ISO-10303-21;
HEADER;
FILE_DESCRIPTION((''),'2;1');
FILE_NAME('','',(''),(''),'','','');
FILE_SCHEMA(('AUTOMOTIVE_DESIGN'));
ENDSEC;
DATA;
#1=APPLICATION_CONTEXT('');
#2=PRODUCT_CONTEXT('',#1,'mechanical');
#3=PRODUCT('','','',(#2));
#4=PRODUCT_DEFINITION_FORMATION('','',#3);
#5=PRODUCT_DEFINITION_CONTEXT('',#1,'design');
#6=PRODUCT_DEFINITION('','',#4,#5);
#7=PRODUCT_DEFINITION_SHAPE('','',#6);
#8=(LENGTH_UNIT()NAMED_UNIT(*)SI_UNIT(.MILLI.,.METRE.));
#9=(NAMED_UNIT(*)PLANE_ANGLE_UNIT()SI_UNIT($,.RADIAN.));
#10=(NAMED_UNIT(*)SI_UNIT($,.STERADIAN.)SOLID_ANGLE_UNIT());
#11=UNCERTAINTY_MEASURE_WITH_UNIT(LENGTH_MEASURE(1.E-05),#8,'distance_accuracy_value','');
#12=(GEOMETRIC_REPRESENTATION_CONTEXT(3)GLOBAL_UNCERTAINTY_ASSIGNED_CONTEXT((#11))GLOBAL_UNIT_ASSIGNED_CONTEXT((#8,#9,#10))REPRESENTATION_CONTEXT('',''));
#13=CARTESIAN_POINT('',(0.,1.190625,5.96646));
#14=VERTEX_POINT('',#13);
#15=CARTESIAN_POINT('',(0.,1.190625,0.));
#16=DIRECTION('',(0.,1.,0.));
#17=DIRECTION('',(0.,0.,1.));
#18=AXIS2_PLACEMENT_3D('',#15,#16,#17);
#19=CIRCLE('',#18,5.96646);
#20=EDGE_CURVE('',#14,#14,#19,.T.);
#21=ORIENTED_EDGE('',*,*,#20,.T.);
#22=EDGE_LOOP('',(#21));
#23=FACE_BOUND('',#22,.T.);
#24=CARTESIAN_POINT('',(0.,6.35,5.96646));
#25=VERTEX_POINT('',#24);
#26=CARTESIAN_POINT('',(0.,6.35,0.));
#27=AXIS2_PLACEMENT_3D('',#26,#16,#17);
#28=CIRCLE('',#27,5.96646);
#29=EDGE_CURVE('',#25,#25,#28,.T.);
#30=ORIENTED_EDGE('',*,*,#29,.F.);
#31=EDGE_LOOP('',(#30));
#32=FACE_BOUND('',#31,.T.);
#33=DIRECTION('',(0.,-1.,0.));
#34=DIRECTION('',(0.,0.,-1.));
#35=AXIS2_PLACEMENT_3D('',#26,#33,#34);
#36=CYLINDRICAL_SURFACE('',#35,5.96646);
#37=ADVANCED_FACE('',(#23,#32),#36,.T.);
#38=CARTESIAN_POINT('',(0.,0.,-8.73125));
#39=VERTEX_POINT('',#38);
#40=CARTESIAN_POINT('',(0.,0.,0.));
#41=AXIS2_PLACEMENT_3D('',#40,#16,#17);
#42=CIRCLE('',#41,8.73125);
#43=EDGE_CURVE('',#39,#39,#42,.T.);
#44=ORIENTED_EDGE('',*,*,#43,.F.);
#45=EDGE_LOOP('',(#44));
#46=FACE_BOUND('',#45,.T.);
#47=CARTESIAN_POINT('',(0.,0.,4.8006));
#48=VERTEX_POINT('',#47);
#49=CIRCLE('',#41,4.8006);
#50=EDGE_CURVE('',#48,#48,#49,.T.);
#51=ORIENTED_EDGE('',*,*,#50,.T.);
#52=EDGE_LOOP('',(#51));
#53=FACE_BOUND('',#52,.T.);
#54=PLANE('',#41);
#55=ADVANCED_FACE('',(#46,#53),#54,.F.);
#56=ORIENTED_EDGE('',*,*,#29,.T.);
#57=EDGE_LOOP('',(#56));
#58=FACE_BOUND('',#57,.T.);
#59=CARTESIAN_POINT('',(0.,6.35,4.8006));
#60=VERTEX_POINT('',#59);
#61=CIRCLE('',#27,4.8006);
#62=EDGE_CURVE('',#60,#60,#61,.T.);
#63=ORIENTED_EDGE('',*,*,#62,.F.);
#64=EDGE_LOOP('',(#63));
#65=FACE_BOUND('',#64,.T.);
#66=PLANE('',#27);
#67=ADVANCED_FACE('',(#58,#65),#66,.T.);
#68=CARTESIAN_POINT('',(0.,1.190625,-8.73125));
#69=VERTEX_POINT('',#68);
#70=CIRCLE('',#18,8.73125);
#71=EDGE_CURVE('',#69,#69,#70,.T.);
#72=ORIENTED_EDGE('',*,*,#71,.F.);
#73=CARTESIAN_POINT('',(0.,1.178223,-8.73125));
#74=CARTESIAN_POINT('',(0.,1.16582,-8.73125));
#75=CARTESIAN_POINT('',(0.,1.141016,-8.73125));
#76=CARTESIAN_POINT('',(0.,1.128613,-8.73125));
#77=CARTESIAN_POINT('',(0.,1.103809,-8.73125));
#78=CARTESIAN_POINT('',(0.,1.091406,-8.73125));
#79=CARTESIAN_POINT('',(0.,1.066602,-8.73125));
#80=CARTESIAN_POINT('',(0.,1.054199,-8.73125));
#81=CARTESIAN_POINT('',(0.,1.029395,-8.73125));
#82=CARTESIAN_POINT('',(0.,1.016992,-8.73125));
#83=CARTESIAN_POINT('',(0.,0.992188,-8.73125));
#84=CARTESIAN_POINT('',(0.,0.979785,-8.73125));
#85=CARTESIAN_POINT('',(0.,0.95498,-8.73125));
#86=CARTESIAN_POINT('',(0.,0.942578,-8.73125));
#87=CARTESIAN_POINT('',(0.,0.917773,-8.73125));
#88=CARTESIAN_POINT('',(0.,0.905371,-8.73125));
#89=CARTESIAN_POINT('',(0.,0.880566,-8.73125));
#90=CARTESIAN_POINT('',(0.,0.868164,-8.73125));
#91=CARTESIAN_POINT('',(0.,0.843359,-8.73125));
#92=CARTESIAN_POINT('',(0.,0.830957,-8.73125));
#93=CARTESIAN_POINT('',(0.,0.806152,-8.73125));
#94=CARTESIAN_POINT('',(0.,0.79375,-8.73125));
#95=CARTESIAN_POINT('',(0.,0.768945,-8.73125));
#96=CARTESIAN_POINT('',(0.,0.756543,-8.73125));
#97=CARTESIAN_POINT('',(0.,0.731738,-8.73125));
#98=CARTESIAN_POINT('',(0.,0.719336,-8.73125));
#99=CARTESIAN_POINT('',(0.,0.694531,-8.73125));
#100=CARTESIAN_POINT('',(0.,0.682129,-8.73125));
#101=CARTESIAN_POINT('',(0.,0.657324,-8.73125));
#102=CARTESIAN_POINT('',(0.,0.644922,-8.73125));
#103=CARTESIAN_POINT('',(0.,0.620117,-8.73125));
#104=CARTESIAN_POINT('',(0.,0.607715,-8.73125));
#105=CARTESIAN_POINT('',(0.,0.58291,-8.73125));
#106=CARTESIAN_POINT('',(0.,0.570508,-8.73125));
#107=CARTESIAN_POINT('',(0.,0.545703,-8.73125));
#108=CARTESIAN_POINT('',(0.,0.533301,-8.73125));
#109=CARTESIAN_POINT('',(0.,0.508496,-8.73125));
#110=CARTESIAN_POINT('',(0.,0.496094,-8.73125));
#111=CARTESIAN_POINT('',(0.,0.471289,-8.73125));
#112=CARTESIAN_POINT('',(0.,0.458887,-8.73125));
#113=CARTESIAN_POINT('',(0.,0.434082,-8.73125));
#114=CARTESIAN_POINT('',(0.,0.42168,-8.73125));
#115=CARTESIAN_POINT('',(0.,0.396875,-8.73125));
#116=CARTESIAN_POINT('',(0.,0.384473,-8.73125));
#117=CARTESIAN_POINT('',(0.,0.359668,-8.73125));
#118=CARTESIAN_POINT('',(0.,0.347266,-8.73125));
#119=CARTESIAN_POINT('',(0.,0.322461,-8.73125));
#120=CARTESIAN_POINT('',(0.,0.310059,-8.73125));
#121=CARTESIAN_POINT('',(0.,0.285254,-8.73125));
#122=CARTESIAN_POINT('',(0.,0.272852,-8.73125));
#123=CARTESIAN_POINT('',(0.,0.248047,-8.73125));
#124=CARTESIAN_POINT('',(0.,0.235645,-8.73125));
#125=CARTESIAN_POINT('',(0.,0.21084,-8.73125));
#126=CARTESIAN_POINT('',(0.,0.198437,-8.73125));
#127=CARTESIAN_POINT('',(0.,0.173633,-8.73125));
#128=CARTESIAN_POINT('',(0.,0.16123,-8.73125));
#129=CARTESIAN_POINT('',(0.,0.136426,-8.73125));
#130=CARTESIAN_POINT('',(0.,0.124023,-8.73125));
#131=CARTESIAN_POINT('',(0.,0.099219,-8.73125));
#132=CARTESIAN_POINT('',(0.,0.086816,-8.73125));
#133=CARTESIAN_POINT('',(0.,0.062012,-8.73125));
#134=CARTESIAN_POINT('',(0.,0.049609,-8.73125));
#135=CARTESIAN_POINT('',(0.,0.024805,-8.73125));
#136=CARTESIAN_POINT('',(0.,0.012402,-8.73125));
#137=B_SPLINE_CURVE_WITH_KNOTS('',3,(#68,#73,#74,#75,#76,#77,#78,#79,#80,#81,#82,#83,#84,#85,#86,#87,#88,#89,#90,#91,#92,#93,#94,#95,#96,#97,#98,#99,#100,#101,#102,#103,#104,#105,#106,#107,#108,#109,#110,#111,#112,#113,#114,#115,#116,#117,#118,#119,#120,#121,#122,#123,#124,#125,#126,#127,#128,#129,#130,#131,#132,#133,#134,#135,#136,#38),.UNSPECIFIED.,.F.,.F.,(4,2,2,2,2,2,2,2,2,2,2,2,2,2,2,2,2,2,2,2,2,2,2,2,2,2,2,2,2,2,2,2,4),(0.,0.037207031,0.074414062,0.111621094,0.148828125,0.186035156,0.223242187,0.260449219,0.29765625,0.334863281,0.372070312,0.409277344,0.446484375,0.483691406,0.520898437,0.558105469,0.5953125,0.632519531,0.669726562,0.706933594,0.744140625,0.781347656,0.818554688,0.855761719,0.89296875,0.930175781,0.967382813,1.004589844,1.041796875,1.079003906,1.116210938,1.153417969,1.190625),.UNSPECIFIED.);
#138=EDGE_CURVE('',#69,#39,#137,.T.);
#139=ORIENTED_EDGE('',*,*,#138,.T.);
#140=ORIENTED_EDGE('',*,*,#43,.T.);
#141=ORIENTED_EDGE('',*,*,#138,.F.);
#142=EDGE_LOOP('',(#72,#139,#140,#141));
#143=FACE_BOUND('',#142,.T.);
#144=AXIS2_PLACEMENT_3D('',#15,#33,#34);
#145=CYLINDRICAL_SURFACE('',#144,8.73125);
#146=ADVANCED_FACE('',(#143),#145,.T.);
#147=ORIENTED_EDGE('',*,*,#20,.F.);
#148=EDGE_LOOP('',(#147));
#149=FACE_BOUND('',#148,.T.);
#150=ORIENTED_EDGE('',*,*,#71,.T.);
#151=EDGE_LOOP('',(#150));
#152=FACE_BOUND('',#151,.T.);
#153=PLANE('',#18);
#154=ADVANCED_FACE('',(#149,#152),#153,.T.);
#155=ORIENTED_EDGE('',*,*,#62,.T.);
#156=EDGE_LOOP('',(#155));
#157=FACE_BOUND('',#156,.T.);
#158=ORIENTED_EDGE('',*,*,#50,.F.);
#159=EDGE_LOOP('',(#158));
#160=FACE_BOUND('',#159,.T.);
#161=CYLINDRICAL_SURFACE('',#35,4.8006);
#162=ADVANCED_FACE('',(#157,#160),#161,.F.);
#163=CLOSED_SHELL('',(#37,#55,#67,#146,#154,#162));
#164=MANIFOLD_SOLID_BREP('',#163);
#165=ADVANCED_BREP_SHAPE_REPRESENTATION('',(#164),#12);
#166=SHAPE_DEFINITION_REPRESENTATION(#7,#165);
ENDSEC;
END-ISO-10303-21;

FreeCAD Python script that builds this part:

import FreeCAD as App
import Part
import Sketcher

V = App.Vector
Q = App.Units.Quantity

doc = App.newDocument("Part")
body = doc.addObject("PartDesign::Body", "Body")

# Sketch on XZ plane
sketch1 = body.newObject("Sketcher::SketchObject", "Sketch")
sketch1.AttachmentSupport = (doc.getObject("XZ_Plane"), [""])
sketch1.MapMode = "FlatFace"
sketch1.addGeometry([
    Part.Circle(V(0, 0, 0), V(0, 0, 1), 6),
    Part.Circle(V(0, 0, 0), V(0, 0, 1), 4.8),
], False)
sketch1.addConstraint([
    Sketcher.Constraint("Coincident", 0, 3, -1, 1),
    Sketcher.Constraint("Coincident", 1, 3, -1, 1),
    Sketcher.Constraint("Diameter", 1, Q("0.378 in")),
    Sketcher.Constraint("Diameter", 0, Q("0.4698 in")),
])
pad1 = body.newObject("PartDesign::Pad", "Pad")
pad1.Profile = sketch1
pad1.Length = Q("0.25 in")
pad1.Reversed = True

# Sketch on XZ plane
sketch2 = body.newObject("Sketcher::SketchObject", "Sketch001")
sketch2.AttachmentSupport = (doc.getObject("XZ_Plane"), [""])
sketch2.MapMode = "FlatFace"
sketch2.addGeometry([
    Part.Circle(V(0, 0, 0), V(0, 0, 1), 9),
    Part.Circle(V(0, 0, 0), V(0, 0, 1), 6),
], False)
sketch2.addConstraint([
    Sketcher.Constraint("Coincident", 0, 3, -1, 1),
    Sketcher.Constraint("Coincident", 1, 3, -1, 1),
    Sketcher.Constraint("Diameter", 0, Q("0.6875 in")),
    Sketcher.Constraint("Diameter", 1, Q("0.4698 in")),
])
pad2 = body.newObject("PartDesign::Pad", "Pad001")
pad2.Profile = sketch2
pad2.Length = Q("0.046875 in")
pad2.Reversed = True

doc.recompute()
